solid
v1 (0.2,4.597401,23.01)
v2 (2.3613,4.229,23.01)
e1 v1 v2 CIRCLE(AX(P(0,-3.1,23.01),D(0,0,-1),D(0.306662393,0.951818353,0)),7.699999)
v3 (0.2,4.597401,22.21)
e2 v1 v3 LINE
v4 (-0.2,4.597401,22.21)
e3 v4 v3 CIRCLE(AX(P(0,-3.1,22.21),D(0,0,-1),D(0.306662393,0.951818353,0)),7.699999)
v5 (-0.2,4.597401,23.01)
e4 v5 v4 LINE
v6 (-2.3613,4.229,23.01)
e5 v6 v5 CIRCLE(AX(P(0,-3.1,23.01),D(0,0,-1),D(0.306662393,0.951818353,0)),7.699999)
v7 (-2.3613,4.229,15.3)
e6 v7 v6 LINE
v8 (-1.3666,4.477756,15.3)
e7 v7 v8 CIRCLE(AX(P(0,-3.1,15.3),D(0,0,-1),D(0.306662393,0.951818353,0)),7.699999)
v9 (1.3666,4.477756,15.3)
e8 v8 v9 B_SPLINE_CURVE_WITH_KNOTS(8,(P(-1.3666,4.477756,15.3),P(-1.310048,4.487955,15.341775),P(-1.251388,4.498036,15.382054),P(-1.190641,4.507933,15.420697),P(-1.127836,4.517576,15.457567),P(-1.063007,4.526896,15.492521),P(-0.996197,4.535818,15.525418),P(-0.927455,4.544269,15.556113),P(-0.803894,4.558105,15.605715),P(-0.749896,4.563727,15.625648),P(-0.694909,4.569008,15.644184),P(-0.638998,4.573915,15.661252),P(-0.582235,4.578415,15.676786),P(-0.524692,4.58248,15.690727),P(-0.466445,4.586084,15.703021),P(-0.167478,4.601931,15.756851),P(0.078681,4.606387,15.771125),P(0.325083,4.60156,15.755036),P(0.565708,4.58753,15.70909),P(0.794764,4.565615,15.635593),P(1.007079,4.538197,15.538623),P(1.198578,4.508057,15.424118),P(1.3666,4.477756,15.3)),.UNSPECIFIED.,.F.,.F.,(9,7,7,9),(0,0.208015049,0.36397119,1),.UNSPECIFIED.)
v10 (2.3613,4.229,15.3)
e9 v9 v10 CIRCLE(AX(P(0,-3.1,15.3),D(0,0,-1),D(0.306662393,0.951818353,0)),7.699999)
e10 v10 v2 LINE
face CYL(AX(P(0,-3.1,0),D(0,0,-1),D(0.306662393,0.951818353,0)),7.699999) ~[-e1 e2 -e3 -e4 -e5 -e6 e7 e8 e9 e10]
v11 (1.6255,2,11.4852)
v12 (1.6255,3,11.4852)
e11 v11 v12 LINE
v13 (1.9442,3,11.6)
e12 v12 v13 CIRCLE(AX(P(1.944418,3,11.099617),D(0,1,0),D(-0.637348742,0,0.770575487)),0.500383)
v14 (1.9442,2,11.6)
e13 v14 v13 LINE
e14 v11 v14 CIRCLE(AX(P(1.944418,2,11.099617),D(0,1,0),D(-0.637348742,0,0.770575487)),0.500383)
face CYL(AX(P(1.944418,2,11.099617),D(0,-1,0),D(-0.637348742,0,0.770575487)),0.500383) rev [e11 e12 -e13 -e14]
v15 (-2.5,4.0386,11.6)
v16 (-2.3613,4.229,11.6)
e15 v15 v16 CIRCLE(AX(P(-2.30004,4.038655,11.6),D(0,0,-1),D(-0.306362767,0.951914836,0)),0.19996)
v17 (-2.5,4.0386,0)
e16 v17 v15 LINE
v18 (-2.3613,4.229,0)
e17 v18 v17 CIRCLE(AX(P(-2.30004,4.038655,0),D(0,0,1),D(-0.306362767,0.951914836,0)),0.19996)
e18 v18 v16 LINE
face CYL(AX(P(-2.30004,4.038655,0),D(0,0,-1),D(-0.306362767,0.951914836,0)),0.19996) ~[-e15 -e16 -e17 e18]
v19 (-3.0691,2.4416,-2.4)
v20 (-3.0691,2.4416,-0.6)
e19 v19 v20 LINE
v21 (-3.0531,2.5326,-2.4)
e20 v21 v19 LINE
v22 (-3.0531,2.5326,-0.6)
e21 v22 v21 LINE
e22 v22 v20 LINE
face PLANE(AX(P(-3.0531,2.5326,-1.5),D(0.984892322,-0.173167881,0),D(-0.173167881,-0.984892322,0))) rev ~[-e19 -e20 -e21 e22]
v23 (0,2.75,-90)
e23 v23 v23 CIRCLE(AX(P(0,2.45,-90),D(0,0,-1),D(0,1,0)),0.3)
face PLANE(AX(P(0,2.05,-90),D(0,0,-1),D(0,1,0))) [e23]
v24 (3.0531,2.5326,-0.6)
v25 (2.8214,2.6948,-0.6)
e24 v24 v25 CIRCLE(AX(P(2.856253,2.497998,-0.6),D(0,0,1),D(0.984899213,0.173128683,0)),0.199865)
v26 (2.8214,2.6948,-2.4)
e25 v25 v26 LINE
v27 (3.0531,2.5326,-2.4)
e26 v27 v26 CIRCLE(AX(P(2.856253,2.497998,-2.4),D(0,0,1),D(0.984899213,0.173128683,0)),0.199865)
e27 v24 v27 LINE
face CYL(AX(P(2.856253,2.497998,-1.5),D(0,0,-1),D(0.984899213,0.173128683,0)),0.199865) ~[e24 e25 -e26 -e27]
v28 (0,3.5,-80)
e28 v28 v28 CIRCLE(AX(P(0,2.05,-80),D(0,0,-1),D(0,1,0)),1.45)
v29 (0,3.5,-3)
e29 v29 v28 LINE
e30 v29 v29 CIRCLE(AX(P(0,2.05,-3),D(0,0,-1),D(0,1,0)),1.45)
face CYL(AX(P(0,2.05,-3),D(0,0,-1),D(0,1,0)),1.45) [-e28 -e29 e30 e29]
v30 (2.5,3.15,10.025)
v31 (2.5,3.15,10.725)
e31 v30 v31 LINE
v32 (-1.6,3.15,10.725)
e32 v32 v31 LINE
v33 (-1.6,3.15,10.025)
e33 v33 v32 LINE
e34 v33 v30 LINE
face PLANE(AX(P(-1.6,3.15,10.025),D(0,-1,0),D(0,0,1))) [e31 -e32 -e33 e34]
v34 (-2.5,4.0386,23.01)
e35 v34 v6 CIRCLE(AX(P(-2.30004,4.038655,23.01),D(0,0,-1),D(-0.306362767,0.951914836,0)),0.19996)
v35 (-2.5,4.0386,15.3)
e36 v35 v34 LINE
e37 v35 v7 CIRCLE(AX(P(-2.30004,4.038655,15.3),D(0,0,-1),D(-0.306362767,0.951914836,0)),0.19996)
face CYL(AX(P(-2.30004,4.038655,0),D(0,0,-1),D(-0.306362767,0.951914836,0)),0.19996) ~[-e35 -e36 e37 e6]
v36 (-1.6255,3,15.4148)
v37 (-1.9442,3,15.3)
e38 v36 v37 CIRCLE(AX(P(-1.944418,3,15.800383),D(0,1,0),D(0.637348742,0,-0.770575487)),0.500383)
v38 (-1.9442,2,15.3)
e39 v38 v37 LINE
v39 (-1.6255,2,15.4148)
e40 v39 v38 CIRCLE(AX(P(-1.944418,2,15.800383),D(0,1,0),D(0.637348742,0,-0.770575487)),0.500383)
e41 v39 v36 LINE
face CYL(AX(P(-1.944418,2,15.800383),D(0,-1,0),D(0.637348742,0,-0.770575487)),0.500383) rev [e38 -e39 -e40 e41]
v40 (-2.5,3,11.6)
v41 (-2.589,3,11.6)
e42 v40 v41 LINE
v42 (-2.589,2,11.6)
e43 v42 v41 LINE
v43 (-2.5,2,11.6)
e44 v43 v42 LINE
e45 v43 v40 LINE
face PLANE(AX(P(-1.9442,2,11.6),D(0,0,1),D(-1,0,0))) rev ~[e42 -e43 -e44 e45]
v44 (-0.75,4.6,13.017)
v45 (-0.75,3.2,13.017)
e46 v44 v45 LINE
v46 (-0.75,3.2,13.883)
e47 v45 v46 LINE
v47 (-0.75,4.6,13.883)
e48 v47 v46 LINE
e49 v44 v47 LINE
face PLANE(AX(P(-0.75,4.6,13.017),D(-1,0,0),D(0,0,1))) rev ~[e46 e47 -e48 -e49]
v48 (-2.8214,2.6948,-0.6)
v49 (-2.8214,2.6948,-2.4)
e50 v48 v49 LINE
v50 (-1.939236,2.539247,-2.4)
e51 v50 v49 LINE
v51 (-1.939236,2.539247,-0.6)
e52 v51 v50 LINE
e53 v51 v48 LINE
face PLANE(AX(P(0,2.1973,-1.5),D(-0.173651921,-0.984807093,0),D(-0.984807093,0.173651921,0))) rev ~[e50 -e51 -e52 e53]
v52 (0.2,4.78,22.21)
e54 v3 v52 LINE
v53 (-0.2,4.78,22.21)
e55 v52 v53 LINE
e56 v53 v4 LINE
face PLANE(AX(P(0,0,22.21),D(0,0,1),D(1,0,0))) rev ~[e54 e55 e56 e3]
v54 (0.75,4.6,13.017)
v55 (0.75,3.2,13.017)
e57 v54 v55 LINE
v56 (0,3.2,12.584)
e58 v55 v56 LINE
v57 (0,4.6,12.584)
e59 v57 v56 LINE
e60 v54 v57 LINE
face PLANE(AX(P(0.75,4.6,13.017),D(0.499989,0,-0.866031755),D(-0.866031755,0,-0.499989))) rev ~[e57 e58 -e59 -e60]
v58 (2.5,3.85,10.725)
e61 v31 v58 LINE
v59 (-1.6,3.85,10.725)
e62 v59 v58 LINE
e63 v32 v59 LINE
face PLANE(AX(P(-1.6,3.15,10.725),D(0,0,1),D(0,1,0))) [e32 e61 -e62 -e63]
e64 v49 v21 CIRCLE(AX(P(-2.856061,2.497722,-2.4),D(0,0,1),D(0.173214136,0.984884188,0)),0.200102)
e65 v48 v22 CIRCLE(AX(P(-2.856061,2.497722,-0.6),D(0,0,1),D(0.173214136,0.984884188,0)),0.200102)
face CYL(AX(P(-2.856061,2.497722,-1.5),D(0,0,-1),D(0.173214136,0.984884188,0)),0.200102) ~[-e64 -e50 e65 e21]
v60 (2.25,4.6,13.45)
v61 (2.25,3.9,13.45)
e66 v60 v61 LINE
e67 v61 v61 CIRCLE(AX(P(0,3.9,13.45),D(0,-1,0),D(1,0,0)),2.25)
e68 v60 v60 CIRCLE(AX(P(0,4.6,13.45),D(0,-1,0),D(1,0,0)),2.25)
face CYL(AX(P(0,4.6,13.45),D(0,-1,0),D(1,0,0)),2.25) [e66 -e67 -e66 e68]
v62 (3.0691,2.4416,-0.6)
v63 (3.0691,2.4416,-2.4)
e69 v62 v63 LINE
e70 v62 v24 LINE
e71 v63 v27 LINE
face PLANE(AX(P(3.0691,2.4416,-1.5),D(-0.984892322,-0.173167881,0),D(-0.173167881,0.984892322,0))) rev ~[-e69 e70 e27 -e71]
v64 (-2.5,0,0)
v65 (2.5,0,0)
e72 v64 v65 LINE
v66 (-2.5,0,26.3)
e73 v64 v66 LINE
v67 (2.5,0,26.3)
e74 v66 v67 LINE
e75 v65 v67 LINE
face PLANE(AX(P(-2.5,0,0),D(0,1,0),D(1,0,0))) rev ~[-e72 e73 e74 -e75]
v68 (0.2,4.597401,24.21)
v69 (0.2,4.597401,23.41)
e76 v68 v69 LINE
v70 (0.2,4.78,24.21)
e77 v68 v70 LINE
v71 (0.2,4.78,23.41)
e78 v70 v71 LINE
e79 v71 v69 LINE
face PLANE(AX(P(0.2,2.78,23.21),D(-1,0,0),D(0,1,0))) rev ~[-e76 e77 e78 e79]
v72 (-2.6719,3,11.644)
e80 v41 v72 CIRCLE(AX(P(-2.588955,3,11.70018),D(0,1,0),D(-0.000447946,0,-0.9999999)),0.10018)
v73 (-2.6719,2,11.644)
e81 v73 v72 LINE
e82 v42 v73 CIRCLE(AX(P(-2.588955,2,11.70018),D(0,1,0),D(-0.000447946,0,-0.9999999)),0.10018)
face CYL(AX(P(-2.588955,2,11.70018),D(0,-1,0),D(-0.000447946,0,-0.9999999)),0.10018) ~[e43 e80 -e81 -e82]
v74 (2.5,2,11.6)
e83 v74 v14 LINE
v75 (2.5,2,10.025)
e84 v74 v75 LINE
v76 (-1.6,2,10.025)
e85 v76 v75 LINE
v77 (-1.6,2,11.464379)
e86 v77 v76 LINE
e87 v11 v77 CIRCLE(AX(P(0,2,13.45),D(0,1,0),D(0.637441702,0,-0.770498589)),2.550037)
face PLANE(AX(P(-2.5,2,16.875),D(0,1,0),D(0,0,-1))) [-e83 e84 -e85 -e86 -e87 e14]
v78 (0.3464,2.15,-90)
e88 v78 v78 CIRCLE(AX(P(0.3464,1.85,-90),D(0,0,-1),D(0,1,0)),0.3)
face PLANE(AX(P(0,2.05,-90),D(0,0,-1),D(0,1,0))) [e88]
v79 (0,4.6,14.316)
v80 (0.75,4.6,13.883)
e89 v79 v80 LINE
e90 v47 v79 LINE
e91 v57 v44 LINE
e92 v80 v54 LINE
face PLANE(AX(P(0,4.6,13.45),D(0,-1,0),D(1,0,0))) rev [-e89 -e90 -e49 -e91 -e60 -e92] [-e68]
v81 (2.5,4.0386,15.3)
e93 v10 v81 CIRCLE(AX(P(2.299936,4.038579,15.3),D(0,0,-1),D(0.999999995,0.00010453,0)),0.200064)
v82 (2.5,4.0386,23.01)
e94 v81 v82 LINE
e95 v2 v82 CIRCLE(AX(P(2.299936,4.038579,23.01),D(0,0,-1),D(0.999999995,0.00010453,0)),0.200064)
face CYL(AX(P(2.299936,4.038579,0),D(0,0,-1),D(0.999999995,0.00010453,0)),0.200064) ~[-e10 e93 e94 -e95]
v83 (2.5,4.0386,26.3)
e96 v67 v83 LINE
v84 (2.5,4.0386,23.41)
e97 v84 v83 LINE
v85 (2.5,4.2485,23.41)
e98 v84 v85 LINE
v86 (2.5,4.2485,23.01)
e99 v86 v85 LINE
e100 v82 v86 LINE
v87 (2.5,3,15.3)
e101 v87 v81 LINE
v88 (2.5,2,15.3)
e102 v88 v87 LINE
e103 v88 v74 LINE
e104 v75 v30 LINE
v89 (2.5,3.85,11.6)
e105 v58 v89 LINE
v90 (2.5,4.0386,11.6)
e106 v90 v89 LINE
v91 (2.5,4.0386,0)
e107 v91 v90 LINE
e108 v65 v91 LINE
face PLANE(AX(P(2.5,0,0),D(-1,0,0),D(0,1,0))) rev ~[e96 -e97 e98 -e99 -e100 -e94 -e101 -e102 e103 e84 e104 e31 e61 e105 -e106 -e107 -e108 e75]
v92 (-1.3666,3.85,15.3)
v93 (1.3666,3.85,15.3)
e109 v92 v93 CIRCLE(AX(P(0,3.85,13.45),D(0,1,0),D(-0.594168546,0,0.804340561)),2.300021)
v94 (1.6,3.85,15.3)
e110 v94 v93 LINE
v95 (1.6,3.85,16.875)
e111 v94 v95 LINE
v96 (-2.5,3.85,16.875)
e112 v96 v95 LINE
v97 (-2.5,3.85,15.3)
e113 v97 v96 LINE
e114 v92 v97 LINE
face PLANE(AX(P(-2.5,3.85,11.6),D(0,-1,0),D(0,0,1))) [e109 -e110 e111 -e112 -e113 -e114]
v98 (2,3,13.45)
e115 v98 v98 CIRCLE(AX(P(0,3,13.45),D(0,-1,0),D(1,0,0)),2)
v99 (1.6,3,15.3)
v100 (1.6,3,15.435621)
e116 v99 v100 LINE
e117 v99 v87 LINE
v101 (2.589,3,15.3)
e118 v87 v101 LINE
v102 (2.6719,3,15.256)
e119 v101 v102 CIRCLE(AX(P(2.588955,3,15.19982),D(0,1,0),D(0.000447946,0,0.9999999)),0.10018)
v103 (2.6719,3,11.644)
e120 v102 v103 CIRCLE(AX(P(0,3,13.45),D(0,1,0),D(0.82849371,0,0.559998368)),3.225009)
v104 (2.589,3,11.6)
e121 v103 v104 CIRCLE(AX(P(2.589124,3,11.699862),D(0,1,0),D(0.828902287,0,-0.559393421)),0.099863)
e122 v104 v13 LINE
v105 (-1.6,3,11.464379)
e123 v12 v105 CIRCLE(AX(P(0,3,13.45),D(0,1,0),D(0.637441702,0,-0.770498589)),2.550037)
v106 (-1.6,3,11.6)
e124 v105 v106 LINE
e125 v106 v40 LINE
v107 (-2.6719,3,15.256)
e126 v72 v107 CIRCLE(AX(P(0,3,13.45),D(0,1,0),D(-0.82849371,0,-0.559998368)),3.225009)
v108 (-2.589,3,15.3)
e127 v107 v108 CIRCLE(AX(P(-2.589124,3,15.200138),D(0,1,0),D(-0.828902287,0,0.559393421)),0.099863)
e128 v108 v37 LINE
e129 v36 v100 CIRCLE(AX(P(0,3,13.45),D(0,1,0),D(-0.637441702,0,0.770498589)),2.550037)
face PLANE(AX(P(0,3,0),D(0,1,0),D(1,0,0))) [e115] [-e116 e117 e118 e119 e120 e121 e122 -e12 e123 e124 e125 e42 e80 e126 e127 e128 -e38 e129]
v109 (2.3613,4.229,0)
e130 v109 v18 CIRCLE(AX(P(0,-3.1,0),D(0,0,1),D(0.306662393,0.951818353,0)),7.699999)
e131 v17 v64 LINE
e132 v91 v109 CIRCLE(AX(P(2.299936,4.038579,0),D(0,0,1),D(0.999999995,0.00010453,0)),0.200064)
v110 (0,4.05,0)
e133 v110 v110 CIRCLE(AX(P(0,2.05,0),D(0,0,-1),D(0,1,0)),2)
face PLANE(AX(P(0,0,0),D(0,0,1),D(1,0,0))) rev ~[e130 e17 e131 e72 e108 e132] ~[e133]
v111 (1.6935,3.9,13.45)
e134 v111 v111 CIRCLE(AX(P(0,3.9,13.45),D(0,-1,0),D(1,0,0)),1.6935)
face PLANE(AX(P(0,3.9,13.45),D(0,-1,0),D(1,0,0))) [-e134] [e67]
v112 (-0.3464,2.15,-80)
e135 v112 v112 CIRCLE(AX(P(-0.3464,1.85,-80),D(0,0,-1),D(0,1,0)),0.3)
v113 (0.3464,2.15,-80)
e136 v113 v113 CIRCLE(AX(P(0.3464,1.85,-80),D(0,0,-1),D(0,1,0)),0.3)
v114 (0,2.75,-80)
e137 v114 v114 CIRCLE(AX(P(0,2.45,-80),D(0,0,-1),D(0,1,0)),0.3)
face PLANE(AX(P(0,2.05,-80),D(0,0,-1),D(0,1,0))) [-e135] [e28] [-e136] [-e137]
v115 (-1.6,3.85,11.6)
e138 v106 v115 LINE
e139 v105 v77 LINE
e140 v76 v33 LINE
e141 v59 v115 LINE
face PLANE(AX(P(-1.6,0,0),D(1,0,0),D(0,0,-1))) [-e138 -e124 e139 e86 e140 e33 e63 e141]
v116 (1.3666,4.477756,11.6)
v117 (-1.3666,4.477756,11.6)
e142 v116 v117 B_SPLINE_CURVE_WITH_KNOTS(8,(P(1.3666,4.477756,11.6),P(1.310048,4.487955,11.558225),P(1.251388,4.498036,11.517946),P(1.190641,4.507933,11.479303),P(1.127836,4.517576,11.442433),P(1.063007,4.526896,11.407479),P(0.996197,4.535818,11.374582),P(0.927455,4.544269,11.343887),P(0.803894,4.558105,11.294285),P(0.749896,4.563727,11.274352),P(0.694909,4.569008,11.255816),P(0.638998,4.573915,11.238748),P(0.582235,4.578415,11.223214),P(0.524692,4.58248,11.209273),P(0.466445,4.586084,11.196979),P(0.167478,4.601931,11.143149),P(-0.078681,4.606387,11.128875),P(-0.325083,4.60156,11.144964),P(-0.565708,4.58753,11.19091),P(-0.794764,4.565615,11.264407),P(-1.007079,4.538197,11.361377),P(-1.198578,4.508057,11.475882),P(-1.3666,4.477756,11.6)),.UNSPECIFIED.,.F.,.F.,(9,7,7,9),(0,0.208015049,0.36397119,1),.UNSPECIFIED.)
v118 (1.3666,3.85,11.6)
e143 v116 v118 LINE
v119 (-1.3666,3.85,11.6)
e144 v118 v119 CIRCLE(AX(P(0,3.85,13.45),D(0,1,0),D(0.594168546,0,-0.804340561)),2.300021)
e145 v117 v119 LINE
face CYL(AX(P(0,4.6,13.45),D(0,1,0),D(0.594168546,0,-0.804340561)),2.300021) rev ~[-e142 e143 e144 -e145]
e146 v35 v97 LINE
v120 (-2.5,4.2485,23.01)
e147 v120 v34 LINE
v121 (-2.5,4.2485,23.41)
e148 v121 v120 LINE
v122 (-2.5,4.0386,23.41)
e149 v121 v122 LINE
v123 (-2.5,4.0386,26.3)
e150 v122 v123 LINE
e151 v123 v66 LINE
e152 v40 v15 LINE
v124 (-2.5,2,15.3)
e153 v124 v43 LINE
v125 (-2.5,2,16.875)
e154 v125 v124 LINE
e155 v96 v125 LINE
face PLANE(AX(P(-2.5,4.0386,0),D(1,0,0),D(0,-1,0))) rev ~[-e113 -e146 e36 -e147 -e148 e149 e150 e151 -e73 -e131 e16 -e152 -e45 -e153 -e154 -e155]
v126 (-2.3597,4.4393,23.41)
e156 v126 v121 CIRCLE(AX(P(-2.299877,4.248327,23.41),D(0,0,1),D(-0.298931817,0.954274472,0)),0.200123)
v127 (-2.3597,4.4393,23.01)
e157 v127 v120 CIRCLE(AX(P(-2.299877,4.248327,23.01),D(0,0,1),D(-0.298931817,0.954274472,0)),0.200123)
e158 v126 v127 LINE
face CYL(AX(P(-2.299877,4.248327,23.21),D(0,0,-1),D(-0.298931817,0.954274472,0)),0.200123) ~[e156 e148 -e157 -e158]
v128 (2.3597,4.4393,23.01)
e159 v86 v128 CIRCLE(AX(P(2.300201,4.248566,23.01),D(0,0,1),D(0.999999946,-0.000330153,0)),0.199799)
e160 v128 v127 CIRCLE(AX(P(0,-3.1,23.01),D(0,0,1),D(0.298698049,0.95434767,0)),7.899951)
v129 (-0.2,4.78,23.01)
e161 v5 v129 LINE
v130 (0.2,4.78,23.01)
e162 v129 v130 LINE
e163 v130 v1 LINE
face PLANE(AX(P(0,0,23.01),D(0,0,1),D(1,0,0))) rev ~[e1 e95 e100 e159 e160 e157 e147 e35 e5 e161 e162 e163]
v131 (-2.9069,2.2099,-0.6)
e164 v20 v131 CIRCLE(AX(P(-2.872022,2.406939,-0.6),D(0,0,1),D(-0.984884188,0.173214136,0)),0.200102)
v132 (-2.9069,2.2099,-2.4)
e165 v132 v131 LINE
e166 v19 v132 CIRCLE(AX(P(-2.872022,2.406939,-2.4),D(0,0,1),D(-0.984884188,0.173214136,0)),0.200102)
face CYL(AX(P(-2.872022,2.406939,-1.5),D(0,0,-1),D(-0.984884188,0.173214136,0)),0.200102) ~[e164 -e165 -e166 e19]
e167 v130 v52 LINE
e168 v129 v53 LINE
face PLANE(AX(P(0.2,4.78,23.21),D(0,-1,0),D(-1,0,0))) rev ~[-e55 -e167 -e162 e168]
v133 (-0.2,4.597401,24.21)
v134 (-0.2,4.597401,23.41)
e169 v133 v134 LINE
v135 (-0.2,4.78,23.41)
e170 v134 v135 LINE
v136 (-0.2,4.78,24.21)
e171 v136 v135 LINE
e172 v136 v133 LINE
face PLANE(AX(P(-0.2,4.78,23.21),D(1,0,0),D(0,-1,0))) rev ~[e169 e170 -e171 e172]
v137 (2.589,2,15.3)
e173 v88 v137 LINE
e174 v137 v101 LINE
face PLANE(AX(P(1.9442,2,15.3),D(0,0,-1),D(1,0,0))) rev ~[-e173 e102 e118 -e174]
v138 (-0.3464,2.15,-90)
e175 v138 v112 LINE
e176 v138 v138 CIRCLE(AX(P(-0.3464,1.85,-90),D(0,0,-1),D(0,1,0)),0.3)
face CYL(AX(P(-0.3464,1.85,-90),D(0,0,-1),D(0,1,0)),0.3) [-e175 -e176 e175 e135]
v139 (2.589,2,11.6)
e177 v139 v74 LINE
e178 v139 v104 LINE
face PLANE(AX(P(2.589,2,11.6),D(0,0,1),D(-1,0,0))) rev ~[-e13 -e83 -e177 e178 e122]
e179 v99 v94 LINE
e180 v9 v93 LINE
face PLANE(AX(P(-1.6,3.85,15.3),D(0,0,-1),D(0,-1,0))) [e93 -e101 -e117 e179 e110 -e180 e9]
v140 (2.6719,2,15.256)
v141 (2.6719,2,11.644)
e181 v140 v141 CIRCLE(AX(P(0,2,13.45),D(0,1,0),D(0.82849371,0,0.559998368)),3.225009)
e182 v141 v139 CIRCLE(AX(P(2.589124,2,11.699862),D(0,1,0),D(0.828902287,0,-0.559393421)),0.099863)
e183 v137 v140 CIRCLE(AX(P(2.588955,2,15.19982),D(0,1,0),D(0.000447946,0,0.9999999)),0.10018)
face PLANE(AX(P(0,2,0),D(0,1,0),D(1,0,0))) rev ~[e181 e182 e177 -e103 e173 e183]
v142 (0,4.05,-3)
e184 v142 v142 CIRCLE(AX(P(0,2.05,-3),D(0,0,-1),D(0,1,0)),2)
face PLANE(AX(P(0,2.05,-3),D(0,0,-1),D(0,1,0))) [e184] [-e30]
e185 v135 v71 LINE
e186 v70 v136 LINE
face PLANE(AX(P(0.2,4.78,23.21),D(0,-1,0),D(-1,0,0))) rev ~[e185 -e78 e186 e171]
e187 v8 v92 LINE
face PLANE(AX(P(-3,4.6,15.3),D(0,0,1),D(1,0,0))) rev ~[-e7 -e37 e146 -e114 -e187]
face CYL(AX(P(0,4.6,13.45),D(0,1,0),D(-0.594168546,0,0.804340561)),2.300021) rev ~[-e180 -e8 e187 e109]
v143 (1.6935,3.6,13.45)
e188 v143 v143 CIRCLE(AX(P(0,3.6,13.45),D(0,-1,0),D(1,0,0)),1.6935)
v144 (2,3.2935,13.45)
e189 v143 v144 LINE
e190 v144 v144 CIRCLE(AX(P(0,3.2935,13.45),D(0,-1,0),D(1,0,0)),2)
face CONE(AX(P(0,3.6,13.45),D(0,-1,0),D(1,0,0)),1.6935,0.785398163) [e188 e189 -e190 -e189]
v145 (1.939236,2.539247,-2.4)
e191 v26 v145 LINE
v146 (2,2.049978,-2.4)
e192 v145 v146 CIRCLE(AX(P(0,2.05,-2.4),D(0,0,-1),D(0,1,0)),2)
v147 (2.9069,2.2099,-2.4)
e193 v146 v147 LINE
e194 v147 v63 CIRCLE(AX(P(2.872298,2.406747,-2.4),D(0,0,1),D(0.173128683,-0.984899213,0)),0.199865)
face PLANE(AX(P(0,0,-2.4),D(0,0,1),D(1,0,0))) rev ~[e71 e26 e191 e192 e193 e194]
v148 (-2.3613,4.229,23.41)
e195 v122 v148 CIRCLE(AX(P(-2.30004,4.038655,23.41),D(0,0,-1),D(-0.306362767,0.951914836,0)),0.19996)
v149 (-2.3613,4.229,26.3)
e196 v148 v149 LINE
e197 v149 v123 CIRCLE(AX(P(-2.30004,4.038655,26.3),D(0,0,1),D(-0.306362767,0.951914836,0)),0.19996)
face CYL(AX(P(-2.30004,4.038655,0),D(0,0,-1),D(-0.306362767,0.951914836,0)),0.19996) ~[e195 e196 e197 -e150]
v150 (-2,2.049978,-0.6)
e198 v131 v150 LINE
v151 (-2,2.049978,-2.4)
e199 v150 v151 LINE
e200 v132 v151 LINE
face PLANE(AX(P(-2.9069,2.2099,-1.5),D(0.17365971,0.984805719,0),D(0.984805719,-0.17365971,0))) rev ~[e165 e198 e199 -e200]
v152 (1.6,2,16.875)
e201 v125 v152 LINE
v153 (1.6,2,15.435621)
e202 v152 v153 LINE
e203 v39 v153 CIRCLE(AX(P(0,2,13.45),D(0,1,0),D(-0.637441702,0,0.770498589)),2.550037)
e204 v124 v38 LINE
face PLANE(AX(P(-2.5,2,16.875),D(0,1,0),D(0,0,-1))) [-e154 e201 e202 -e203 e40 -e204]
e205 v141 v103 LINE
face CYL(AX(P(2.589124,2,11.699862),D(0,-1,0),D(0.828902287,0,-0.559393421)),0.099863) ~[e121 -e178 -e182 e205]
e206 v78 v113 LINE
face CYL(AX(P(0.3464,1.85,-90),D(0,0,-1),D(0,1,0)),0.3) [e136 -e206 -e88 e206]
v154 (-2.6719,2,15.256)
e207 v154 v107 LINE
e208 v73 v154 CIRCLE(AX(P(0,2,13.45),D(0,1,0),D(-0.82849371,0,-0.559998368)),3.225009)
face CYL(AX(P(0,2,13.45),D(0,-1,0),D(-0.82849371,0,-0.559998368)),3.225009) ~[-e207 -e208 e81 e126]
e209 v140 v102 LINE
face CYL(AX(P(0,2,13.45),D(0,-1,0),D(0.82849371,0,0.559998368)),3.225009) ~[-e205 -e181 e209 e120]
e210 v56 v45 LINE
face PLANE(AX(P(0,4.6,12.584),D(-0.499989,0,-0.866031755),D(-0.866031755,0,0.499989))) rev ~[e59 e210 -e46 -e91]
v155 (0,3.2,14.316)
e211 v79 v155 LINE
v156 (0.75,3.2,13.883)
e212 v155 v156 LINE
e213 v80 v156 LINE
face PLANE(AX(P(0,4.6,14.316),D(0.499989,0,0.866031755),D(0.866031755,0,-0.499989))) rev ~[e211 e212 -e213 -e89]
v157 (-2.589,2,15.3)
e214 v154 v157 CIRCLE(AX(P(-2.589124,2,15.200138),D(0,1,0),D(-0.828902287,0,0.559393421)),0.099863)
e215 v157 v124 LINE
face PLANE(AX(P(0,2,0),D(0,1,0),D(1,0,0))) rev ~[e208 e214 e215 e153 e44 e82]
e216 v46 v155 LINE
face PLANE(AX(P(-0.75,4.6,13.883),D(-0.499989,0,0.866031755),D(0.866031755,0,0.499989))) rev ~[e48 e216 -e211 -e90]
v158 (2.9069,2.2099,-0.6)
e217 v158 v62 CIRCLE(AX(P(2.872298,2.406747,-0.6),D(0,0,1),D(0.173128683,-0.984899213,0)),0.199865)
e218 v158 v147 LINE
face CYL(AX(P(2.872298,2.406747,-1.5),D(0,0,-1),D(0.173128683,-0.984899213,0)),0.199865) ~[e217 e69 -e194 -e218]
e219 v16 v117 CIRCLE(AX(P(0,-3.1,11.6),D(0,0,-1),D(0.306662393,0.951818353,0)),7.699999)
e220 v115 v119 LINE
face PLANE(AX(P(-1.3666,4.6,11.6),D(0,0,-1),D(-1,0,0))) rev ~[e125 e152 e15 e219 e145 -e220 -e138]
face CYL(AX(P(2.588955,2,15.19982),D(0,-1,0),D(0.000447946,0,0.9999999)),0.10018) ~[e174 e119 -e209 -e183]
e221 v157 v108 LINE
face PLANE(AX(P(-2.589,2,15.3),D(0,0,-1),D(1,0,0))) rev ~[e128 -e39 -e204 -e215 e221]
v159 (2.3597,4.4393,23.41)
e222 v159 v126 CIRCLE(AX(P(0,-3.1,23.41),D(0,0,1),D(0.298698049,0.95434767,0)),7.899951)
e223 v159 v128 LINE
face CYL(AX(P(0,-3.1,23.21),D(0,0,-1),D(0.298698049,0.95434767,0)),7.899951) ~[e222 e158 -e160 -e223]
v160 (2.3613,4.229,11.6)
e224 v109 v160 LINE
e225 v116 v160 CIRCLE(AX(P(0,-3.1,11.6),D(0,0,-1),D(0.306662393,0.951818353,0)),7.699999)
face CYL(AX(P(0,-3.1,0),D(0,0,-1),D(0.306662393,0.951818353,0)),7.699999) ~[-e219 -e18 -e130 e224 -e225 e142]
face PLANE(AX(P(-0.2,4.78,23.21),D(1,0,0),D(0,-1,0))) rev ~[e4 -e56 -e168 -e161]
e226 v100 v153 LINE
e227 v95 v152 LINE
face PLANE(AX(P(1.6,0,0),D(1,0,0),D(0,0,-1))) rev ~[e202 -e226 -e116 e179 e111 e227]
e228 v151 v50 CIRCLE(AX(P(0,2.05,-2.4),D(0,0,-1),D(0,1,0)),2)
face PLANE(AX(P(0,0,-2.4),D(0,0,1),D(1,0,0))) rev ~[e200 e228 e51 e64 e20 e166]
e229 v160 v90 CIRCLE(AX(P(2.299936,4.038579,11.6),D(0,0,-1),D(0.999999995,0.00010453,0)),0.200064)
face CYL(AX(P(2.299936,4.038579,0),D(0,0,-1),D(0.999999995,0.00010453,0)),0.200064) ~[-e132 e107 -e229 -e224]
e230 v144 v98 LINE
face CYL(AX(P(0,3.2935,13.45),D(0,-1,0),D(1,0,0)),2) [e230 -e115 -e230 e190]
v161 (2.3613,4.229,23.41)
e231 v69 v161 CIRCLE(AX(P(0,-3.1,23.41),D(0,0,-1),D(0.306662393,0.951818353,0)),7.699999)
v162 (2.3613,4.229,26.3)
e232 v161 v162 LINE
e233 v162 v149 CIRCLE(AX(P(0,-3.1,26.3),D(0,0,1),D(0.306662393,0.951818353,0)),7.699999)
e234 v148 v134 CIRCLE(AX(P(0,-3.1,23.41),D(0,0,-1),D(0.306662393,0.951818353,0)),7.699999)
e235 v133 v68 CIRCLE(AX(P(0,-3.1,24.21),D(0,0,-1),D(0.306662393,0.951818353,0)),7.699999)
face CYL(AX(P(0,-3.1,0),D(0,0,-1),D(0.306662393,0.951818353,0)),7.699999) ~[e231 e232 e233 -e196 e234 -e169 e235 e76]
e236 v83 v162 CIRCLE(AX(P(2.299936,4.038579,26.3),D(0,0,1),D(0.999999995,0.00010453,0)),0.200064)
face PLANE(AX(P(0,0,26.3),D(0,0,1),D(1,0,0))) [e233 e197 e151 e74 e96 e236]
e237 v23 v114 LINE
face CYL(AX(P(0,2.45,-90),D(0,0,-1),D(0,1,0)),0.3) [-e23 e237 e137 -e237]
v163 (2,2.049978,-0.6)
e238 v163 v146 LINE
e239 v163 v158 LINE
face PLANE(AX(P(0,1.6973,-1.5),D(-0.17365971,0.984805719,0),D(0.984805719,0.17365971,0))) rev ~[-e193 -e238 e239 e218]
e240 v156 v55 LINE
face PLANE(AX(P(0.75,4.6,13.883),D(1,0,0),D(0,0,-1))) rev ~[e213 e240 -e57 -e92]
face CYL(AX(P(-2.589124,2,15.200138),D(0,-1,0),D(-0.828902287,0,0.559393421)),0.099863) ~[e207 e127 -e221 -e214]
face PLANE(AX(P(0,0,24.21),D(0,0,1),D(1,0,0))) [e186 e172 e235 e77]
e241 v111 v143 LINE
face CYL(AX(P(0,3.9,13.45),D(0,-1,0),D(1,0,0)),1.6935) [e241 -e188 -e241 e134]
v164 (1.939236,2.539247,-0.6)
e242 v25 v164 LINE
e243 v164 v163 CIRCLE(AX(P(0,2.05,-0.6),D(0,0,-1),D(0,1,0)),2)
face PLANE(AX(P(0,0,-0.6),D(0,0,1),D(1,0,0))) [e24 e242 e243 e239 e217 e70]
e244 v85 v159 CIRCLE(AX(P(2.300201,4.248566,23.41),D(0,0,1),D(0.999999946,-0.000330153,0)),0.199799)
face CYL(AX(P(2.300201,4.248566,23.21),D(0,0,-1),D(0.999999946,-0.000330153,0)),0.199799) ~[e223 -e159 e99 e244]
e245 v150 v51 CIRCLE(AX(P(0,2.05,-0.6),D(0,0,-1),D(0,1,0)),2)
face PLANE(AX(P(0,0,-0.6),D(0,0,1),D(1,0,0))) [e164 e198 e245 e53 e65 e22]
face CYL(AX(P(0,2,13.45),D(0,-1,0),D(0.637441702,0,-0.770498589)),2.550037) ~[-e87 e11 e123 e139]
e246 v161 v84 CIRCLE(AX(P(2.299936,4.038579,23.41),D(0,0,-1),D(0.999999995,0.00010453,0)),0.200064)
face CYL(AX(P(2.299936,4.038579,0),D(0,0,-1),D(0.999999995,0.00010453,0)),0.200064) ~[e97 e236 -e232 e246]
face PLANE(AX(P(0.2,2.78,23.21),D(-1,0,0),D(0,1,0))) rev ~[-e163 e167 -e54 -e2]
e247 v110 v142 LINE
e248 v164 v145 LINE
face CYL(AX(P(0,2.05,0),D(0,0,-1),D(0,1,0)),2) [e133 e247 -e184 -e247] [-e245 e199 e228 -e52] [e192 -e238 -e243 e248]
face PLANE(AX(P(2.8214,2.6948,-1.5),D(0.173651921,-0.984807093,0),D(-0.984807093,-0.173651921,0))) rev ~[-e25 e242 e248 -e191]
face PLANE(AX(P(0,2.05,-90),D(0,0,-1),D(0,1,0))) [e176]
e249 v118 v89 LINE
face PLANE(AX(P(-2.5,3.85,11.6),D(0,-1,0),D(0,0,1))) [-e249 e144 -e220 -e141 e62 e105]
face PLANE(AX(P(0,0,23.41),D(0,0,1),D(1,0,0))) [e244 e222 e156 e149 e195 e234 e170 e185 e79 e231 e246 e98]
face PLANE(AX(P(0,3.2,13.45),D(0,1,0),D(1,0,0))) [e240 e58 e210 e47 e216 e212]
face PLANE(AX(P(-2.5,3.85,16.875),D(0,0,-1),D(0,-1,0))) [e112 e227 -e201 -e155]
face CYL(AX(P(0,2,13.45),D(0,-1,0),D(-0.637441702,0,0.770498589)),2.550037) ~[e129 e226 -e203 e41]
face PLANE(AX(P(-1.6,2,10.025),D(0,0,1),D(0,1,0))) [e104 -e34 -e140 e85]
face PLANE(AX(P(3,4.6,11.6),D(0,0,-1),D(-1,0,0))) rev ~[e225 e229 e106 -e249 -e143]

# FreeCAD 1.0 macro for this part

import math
import FreeCAD as App
import Part
import Sketcher

V = App.Vector
Q = App.Units.Quantity


def add_polygon(sketch, points):
    """Adds a closed chain of lines whose ends are joined by coincident constraints."""
    first, n = sketch.GeometryCount, len(points)
    for a, b in zip(points, points[1:] + points[:1]):
        sketch.addGeometry(Part.LineSegment(App.Vector(*a, 0), App.Vector(*b, 0)), False)
    for i in range(n):
        sketch.addConstraint(Sketcher.Constraint("Coincident", first + i, 2, first + (i + 1) % n, 1))

doc = App.newDocument("Part")
body = doc.addObject("PartDesign::Body", "Body")

# Sketch on XY plane
sketch1 = body.newObject("Sketcher::SketchObject", "Sketch")
sketch1.AttachmentSupport = (doc.getObject("XY_Plane"), [""])
sketch1.MapMode = "FlatFace"
sketch1.addGeometry(Part.ArcOfCircle(Part.Circle(V(-2.3, 4.04, 0), V(0, 0, 1), 0.2), math.radians(108), math.radians(180)), False)
sketch1.addGeometry(Part.LineSegment(V(-2.5, 4.04, 0), V(-2.5, 0, 0)), False)
sketch1.addGeometry(Part.LineSegment(V(-2.5, 0, 0), V(2.5, 0, 0)), False)
sketch1.addGeometry(Part.LineSegment(V(2.5, 0, 0), V(2.5, 4.04, 0)), False)
sketch1.addGeometry(Part.ArcOfCircle(Part.Circle(V(2.3, 4.04, 0), V(0, 0, 1), 0.2), math.radians(0), math.radians(72)), False)
sketch1.addGeometry(Part.ArcOfCircle(Part.Circle(V(0, -3.1, 0), V(0, 0, 1), 7.7), math.radians(72), math.radians(108)), False)
sketch1.addConstraint(Sketcher.Constraint("Tangent", 0, 2, 1, 1))
sketch1.addConstraint(Sketcher.Constraint("Coincident", 1, 2, 2, 1))
sketch1.addConstraint(Sketcher.Constraint("Coincident", 2, 2, 3, 1))
sketch1.addConstraint(Sketcher.Constraint("Tangent", 3, 2, 4, 1))
sketch1.addConstraint(Sketcher.Constraint("Tangent", 4, 2, 5, 1))
sketch1.addConstraint(Sketcher.Constraint("Tangent", 5, 2, 0, 1))
sketch1.addConstraint(Sketcher.Constraint("Vertical", 1))
sketch1.addConstraint(Sketcher.Constraint("Horizontal", 2))
sketch1.addConstraint(Sketcher.Constraint("Vertical", 3))
sketch1.addConstraint(Sketcher.Constraint("Equal", 0, 4))
sketch1.addConstraint(Sketcher.Constraint("Symmetric", 1, 2, 2, 2, -1, 1))
sketch1.addConstraint(Sketcher.Constraint("PointOnObject", 5, 3, -2))
sketch1.addConstraint(Sketcher.Constraint("Radius", 0, 0.2))
sketch1.addConstraint(Sketcher.Constraint("Radius", 5, 7.7))
sketch1.addConstraint(Sketcher.Constraint("DistanceX", 2, 1, 2, 2, 5.0))
sketch1.addConstraint(Sketcher.Constraint("DistanceY", 5, 3, -1, 1, 3.1))
pad1 = body.newObject("PartDesign::Pad", "Pad")
pad1.Profile = sketch1
pad1.Length = 26.3

# Sketch on YZ plane
sketch2 = body.newObject("Sketcher::SketchObject", "Sketch001")
sketch2.AttachmentSupport = (doc.getObject("YZ_Plane"), [""])
sketch2.MapMode = "FlatFace"
sketch2.AttachmentOffset = App.Placement(V(0, 0, -1.6), App.Rotation())
add_polygon(sketch2, [(3.9, 10.7), (3.9, 15.3), (2, 15.3), (2, 10), (3.1, 10), (3.1, 10.7)])  # lines 0-5
sketch2.addConstraint(Sketcher.Constraint("Vertical", 0))
sketch2.addConstraint(Sketcher.Constraint("Horizontal", 1))
sketch2.addConstraint(Sketcher.Constraint("Vertical", 2))
sketch2.addConstraint(Sketcher.Constraint("Horizontal", 3))
sketch2.addConstraint(Sketcher.Constraint("Vertical", 4))
sketch2.addConstraint(Sketcher.Constraint("Horizontal", 5))
sketch2.addConstraint(Sketcher.Constraint("Equal", 5, 4))
sketch2.addConstraint(Sketcher.Constraint("DistanceX", 5, 1, 5, 2, 0.7))
sketch2.addConstraint(Sketcher.Constraint("DistanceX", -1, 1, 1, 2, 2.0))
sketch2.addConstraint(Sketcher.Constraint("DistanceX", 1, 2, 1, 1, 1.85))
sketch2.addConstraint(Sketcher.Constraint("DistanceY", -1, 1, 0, 2, 15.3))
sketch2.addConstraint(Sketcher.Constraint("DistanceY", 0, 1, 0, 2, 4.575))
pocket1 = body.newObject("PartDesign::Pocket", "Pocket")
pocket1.Profile = sketch2
pocket1.Length = 4.1
pocket1.Reversed = True

# Sketch on YZ plane
sketch3 = body.newObject("Sketcher::SketchObject", "Sketch002")
sketch3.AttachmentSupport = (doc.getObject("YZ_Plane"), [""])
sketch3.MapMode = "FlatFace"
sketch3.AttachmentOffset = App.Placement(V(0, 0, -2.5), App.Rotation())
add_polygon(sketch3, [(3.9, 11.6), (3.9, 16.9), (2, 16.9), (2, 11.6)])  # lines 0-3
sketch3.addConstraint(Sketcher.Constraint("Vertical", 0))
sketch3.addConstraint(Sketcher.Constraint("Horizontal", 1))
sketch3.addConstraint(Sketcher.Constraint("Vertical", 2))
sketch3.addConstraint(Sketcher.Constraint("Horizontal", 3))
sketch3.addConstraint(Sketcher.Constraint("DistanceX", -1, 1, 1, 2, 2.0))
sketch3.addConstraint(Sketcher.Constraint("DistanceX", 1, 2, 1, 1, 1.85))
sketch3.addConstraint(Sketcher.Constraint("DistanceY", -1, 1, 2, 2, 11.6))
sketch3.addConstraint(Sketcher.Constraint("DistanceY", 0, 1, 0, 2, 5.275))
pocket2 = body.newObject("PartDesign::Pocket", "Pocket001")
pocket2.Profile = sketch3
pocket2.Length = 4.1
pocket2.Reversed = True

# Sketch on XZ plane
sketch4 = body.newObject("Sketcher::SketchObject", "Sketch003")
sketch4.AttachmentSupport = (doc.getObject("XZ_Plane"), [""])
sketch4.MapMode = "FlatFace"
sketch4.AttachmentOffset = App.Placement(V(0, 0, -4.6), App.Rotation())
sketch4.addGeometry(Part.LineSegment(V(-3, 11.6, 0), V(-3, 15.3, 0)), False)
sketch4.addGeometry(Part.LineSegment(V(-3, 15.3, 0), V(-1.4, 15.3, 0)), False)
sketch4.addGeometry(Part.ArcOfCircle(Part.Circle(V(0, 13.4, 0), V(0, 0, 1), 2.3), math.radians(54), math.radians(126)), False)
sketch4.addGeometry(Part.LineSegment(V(1.4, 15.3, 0), V(3, 15.3, 0)), False)
sketch4.addGeometry(Part.LineSegment(V(3, 15.3, 0), V(3, 11.6, 0)), False)
sketch4.addGeometry(Part.LineSegment(V(3, 11.6, 0), V(1.4, 11.6, 0)), False)
sketch4.addGeometry(Part.ArcOfCircle(Part.Circle(V(0, 13.4, 0), V(0, 0, 1), 2.3), math.radians(-126), math.radians(-54)), False)
sketch4.addGeometry(Part.LineSegment(V(-1.4, 11.6, 0), V(-3, 11.6, 0)), False)
sketch4.addConstraint(Sketcher.Constraint("Coincident", 0, 2, 1, 1))
sketch4.addConstraint(Sketcher.Constraint("Coincident", 1, 2, 2, 2))
sketch4.addConstraint(Sketcher.Constraint("Coincident", 2, 1, 3, 1))
sketch4.addConstraint(Sketcher.Constraint("Coincident", 3, 2, 4, 1))
sketch4.addConstraint(Sketcher.Constraint("Coincident", 4, 2, 5, 1))
sketch4.addConstraint(Sketcher.Constraint("Coincident", 5, 2, 6, 2))
sketch4.addConstraint(Sketcher.Constraint("Coincident", 6, 1, 7, 1))
sketch4.addConstraint(Sketcher.Constraint("Coincident", 7, 2, 0, 1))
sketch4.addConstraint(Sketcher.Constraint("Vertical", 0))
sketch4.addConstraint(Sketcher.Constraint("Horizontal", 1))
sketch4.addConstraint(Sketcher.Constraint("Horizontal", 3))
sketch4.addConstraint(Sketcher.Constraint("Vertical", 4))
sketch4.addConstraint(Sketcher.Constraint("Horizontal", 5))
sketch4.addConstraint(Sketcher.Constraint("Horizontal", 7))
sketch4.addConstraint(Sketcher.Constraint("Coincident", 6, 3, 2, 3))
sketch4.addConstraint(Sketcher.Constraint("Equal", 2, 6))
sketch4.addConstraint(Sketcher.Constraint("Symmetric", 1, 2, 2, 1, -2))
sketch4.addConstraint(Sketcher.Constraint("Symmetric", 4, 2, 7, 2, -2))
sketch4.addConstraint(Sketcher.Constraint("Vertical", 2, 1, 5, 2))
sketch4.addConstraint(Sketcher.Constraint("Radius", 2, 2.3))
sketch4.addConstraint(Sketcher.Constraint("DistanceY", 0, 1, 0, 2, 3.7))
sketch4.addConstraint(Sketcher.Constraint("DistanceX", 0, 2, -1, 1, 3.0))
sketch4.addConstraint(Sketcher.Constraint("DistanceY", -1, 1, 0, 2, 15.3))
pocket3 = body.newObject("PartDesign::Pocket", "Pocket002")
pocket3.Profile = sketch4
pocket3.Length = 2.5
pocket3.Reversed = True

# Sketch on XZ plane
sketch5 = body.newObject("Sketcher::SketchObject", "Sketch004")
sketch5.AttachmentSupport = (doc.getObject("XZ_Plane"), [""])
sketch5.MapMode = "FlatFace"
sketch5.AttachmentOffset = App.Placement(V(0, 0, -2), App.Rotation())
sketch5.addGeometry(Part.ArcOfCircle(Part.Circle(V(-2.59, 11.7, 0), V(0, 0, 1), 0.1), math.radians(-146), math.radians(-90)), False)
sketch5.addGeometry(Part.ArcOfCircle(Part.Circle(V(0, 13.45, 0), V(0, 0, 1), 3.23), math.radians(146), math.radians(214)), False)
sketch5.addGeometry(Part.ArcOfCircle(Part.Circle(V(-2.59, 15.2, 0), V(0, 0, 1), 0.1), math.radians(90), math.radians(146)), False)
sketch5.addGeometry(Part.LineSegment(V(-2.59, 15.3, 0), V(-1.94, 15.3, 0)), False)
sketch5.addGeometry(Part.ArcOfCircle(Part.Circle(V(-1.94, 15.8, 0), V(0, 0, 1), 0.5), math.radians(-90), math.radians(-50)), False)
sketch5.addGeometry(Part.ArcOfCircle(Part.Circle(V(0, 13.45, 0), V(0, 0, 1), 2.55), math.radians(50), math.radians(130)), False)
sketch5.addGeometry(Part.ArcOfCircle(Part.Circle(V(1.94, 15.8, 0), V(0, 0, 1), 0.5), math.radians(-130), math.radians(-90)), False)
sketch5.addGeometry(Part.LineSegment(V(1.94, 15.3, 0), V(2.59, 15.3, 0)), False)
sketch5.addGeometry(Part.ArcOfCircle(Part.Circle(V(2.59, 15.2, 0), V(0, 0, 1), 0.1), math.radians(34), math.radians(90)), False)
sketch5.addGeometry(Part.ArcOfCircle(Part.Circle(V(0, 13.45, 0), V(0, 0, 1), 3.23), math.radians(-34), math.radians(34)), False)
sketch5.addGeometry(Part.ArcOfCircle(Part.Circle(V(2.59, 11.7, 0), V(0, 0, 1), 0.1), math.radians(-90), math.radians(-34)), False)
sketch5.addGeometry(Part.LineSegment(V(2.59, 11.6, 0), V(1.94, 11.6, 0)), False)
sketch5.addGeometry(Part.ArcOfCircle(Part.Circle(V(1.94, 11.1, 0), V(0, 0, 1), 0.5), math.radians(90), math.radians(130)), False)
sketch5.addGeometry(Part.ArcOfCircle(Part.Circle(V(0, 13.45, 0), V(0, 0, 1), 2.55), math.radians(-130), math.radians(-50)), False)
sketch5.addGeometry(Part.ArcOfCircle(Part.Circle(V(-1.94, 11.1, 0), V(0, 0, 1), 0.5), math.radians(50), math.radians(90)), False)
sketch5.addGeometry(Part.LineSegment(V(-1.94, 11.6, 0), V(-2.59, 11.6, 0)), False)
sketch5.addConstraint(Sketcher.Constraint("Tangent", 0, 1, 1, 2))
sketch5.addConstraint(Sketcher.Constraint("Tangent", 1, 1, 2, 2))
sketch5.addConstraint(Sketcher.Constraint("Tangent", 2, 1, 3, 1))
sketch5.addConstraint(Sketcher.Constraint("Tangent", 3, 2, 4, 1))
sketch5.addConstraint(Sketcher.Constraint("Tangent", 4, 2, 5, 2))
sketch5.addConstraint(Sketcher.Constraint("Tangent", 5, 1, 6, 1))
sketch5.addConstraint(Sketcher.Constraint("Tangent", 6, 2, 7, 1))
sketch5.addConstraint(Sketcher.Constraint("Tangent", 7, 2, 8, 2))
sketch5.addConstraint(Sketcher.Constraint("Tangent", 8, 1, 9, 2))
sketch5.addConstraint(Sketcher.Constraint("Tangent", 9, 1, 10, 2))
sketch5.addConstraint(Sketcher.Constraint("Tangent", 10, 1, 11, 1))
sketch5.addConstraint(Sketcher.Constraint("Tangent", 11, 2, 12, 1))
sketch5.addConstraint(Sketcher.Constraint("Tangent", 12, 2, 13, 2))
sketch5.addConstraint(Sketcher.Constraint("Tangent", 13, 1, 14, 1))
sketch5.addConstraint(Sketcher.Constraint("Tangent", 14, 2, 15, 1))
sketch5.addConstraint(Sketcher.Constraint("Tangent", 15, 2, 0, 2))
sketch5.addConstraint(Sketcher.Constraint("Horizontal", 3))
sketch5.addConstraint(Sketcher.Constraint("Horizontal", 7))
sketch5.addConstraint(Sketcher.Constraint("Horizontal", 11))
sketch5.addConstraint(Sketcher.Constraint("Horizontal", 15))
sketch5.addConstraint(Sketcher.Constraint("Coincident", 5, 3, 1, 3))
sketch5.addConstraint(Sketcher.Constraint("Coincident", 9, 3, 1, 3))
sketch5.addConstraint(Sketcher.Constraint("Coincident", 13, 3, 1, 3))
sketch5.addConstraint(Sketcher.Constraint("Equal", 0, 2))
sketch5.addConstraint(Sketcher.Constraint("Equal", 4, 6))
sketch5.addConstraint(Sketcher.Constraint("Equal", 2, 8))
sketch5.addConstraint(Sketcher.Constraint("Equal", 1, 9))
sketch5.addConstraint(Sketcher.Constraint("Equal", 8, 10))
sketch5.addConstraint(Sketcher.Constraint("Equal", 6, 12))
sketch5.addConstraint(Sketcher.Constraint("Equal", 5, 13))
sketch5.addConstraint(Sketcher.Constraint("Equal", 12, 14))
sketch5.addConstraint(Sketcher.Constraint("Symmetric", 4, 3, 6, 3, -2))
sketch5.addConstraint(Sketcher.Constraint("Horizontal", 0, 3, 10, 3))
sketch5.addConstraint(Sketcher.Constraint("Vertical", 0, 3, 2, 3))
sketch5.addConstraint(Sketcher.Constraint("Radius", 0, 0.1))
sketch5.addConstraint(Sketcher.Constraint("Radius", 4, 0.5))
sketch5.addConstraint(Sketcher.Constraint("Radius", 5, 2.55))
sketch5.addConstraint(Sketcher.Constraint("Radius", 1, 3.225))
sketch5.addConstraint(Sketcher.Constraint("DistanceY", -1, 1, 0, 3, 11.7))
sketch5.addConstraint(Sketcher.Constraint("DistanceY", -1, 1, 2, 3, 15.2))
pad2 = body.newObject("PartDesign::Pad", "Pad001")
pad2.Profile = sketch5
pad2.Length = 1
pad2.Reversed = True

# Sketch on XY plane
sketch6 = body.newObject("Sketcher::SketchObject", "Sketch005")
sketch6.AttachmentSupport = (doc.getObject("XY_Plane"), [""])
sketch6.MapMode = "FlatFace"
sketch6.AttachmentOffset = App.Placement(V(0, 0, 13.45), App.Rotation())
add_polygon(sketch6, [(0, 4.6), (0, 2), (1.69, 2), (2, 2.31), (2, 3.29), (1.69, 3.6), (1.69, 3.9), (2.25, 3.9), (2.25, 4.6)])  # lines 0-8
sketch6.addConstraint(Sketcher.Constraint("Vertical", 0))
sketch6.addConstraint(Sketcher.Constraint("Horizontal", 1))
sketch6.addConstraint(Sketcher.Constraint("Vertical", 3))
sketch6.addConstraint(Sketcher.Constraint("Vertical", 5))
sketch6.addConstraint(Sketcher.Constraint("Horizontal", 6))
sketch6.addConstraint(Sketcher.Constraint("Vertical", 7))
sketch6.addConstraint(Sketcher.Constraint("Horizontal", 8))
sketch6.addConstraint(Sketcher.Constraint("PointOnObject", 0, 2, -2))
sketch6.addConstraint(Sketcher.Constraint("Perpendicular", 2, 4))
sketch6.addConstraint(Sketcher.Constraint("Vertical", 1, 2, 4, 2))
sketch6.addConstraint(Sketcher.Constraint("Equal", 2, 4))
sketch6.addConstraint(Sketcher.Constraint("DistanceY", 0, 2, 0, 1, 2.6))
sketch6.addConstraint(Sketcher.Constraint("DistanceY", 5, 1, 5, 2, 0.3))
sketch6.addConstraint(Sketcher.Constraint("DistanceY", 7, 1, 7, 2, 0.7))
sketch6.addConstraint(Sketcher.Constraint("DistanceY", -1, 1, 0, 2, 2.0))
sketch6.addConstraint(Sketcher.Constraint("DistanceX", -1, 1, 2, 2, 2.0))
sketch6.addConstraint(Sketcher.Constraint("DistanceX", 8, 2, 8, 1, 2.25))
sketch6.addConstraint(Sketcher.Constraint("DistanceY", 3, 1, 3, 2, 0.987))
revolution = body.newObject("PartDesign::Revolution", "Revolution")
revolution.Profile = sketch6
revolution.ReferenceAxis = (sketch6, ["V_Axis"])
revolution.Angle = 360

# Sketch on XZ plane
sketch7 = body.newObject("Sketcher::SketchObject", "Sketch006")
sketch7.AttachmentSupport = (doc.getObject("XZ_Plane"), [""])
sketch7.MapMode = "FlatFace"
sketch7.AttachmentOffset = App.Placement(V(0, 0, -4.6), App.Rotation())
add_polygon(sketch7, [(-0.8, 13), (-0.8, 13.9), (0, 14.3), (0.8, 13.9), (0.8, 13), (0, 12.6)])  # lines 0-5
sketch7.addConstraint(Sketcher.Constraint("Vertical", 0))
sketch7.addConstraint(Sketcher.Constraint("Vertical", 3))
sketch7.addConstraint(Sketcher.Constraint("Symmetric", 0, 2, 2, 2, -2))
sketch7.addConstraint(Sketcher.Constraint("PointOnObject", 1, 2, -2))
sketch7.addConstraint(Sketcher.Constraint("PointOnObject", 4, 2, -2))
sketch7.addConstraint(Sketcher.Constraint("Parallel", 1, 4))
sketch7.addConstraint(Sketcher.Constraint("Parallel", 2, 5))
sketch7.addConstraint(Sketcher.Constraint("Angle", 1, Q("29.9993 deg")))
sketch7.addConstraint(Sketcher.Constraint("DistanceX", 0, 2, 2, 2, 1.5))
sketch7.addConstraint(Sketcher.Constraint("DistanceY", 0, 1, 0, 2, 0.866))
sketch7.addConstraint(Sketcher.Constraint("DistanceY", -1, 1, 0, 2, 13.883))
pocket4 = body.newObject("PartDesign::Pocket", "Pocket003")
pocket4.Profile = sketch7
pocket4.Length = 1.4
pocket4.Reversed = True

# Sketch on XY plane
sketch8 = body.newObject("Sketcher::SketchObject", "Sketch007")
sketch8.AttachmentSupport = (doc.getObject("XY_Plane"), [""])
sketch8.MapMode = "FlatFace"
sketch8.AttachmentOffset = App.Placement(V(0, 0, 23.21), App.Rotation())
sketch8.addGeometry(Part.LineSegment(V(-2.5, 4.25, 0), V(-2.5, 2.8, 0)), False)
sketch8.addGeometry(Part.LineSegment(V(-2.5, 2.8, 0), V(2.5, 2.8, 0)), False)
sketch8.addGeometry(Part.LineSegment(V(2.5, 2.8, 0), V(2.5, 4.25, 0)), False)
sketch8.addGeometry(Part.ArcOfCircle(Part.Circle(V(2.3, 4.25, 0), V(0, 0, 1), 0.2), math.radians(0), math.radians(73)), False)
sketch8.addGeometry(Part.ArcOfCircle(Part.Circle(V(0, -3.1, 0), V(0, 0, 1), 7.9), math.radians(73), math.radians(107)), False)
sketch8.addGeometry(Part.ArcOfCircle(Part.Circle(V(-2.3, 4.25, 0), V(0, 0, 1), 0.2), math.radians(107), math.radians(180)), False)
sketch8.addConstraint(Sketcher.Constraint("Coincident", 0, 2, 1, 1))
sketch8.addConstraint(Sketcher.Constraint("Coincident", 1, 2, 2, 1))
sketch8.addConstraint(Sketcher.Constraint("Tangent", 2, 2, 3, 1))
sketch8.addConstraint(Sketcher.Constraint("Tangent", 3, 2, 4, 1))
sketch8.addConstraint(Sketcher.Constraint("Tangent", 4, 2, 5, 1))
sketch8.addConstraint(Sketcher.Constraint("Tangent", 5, 2, 0, 1))
sketch8.addConstraint(Sketcher.Constraint("Vertical", 0))
sketch8.addConstraint(Sketcher.Constraint("Horizontal", 1))
sketch8.addConstraint(Sketcher.Constraint("Vertical", 2))
sketch8.addConstraint(Sketcher.Constraint("Equal", 3, 5))
sketch8.addConstraint(Sketcher.Constraint("Symmetric", 3, 3, 5, 3, -2))
sketch8.addConstraint(Sketcher.Constraint("Radius", 3, 0.2))
sketch8.addConstraint(Sketcher.Constraint("Radius", 4, 7.9))
sketch8.addConstraint(Sketcher.Constraint("DistanceX", 1, 1, 1, 2, 5.0))
sketch8.addConstraint(Sketcher.Constraint("DistanceY", 4, 3, -1, 1, 3.1))
sketch8.addConstraint(Sketcher.Constraint("DistanceY", -1, 1, 0, 2, 2.8))
pad3 = body.newObject("PartDesign::Pad", "Pad002")
pad3.Profile = sketch8
pad3.Length = 0.4
pad3.Midplane = True

# Sketch on XY plane
sketch9 = body.newObject("Sketcher::SketchObject", "Sketch008")
sketch9.AttachmentSupport = (doc.getObject("XY_Plane"), [""])
sketch9.MapMode = "FlatFace"
sketch9.AttachmentOffset = App.Placement(V(0, 0, 23.21), App.Rotation())
add_polygon(sketch9, [(-0.2, 4.78), (-0.2, 2.78), (0.2, 2.78), (0.2, 4.78)])  # lines 0-3
sketch9.addConstraint(Sketcher.Constraint("Vertical", 0))
sketch9.addConstraint(Sketcher.Constraint("Horizontal", 1))
sketch9.addConstraint(Sketcher.Constraint("Vertical", 2))
sketch9.addConstraint(Sketcher.Constraint("Horizontal", 3))
sketch9.addConstraint(Sketcher.Constraint("DistanceY", 0, 2, 0, 1, 2.0))
sketch9.addConstraint(Sketcher.Constraint("DistanceX", 1, 1, 1, 2, 0.4))
sketch9.addConstraint(Sketcher.Constraint("DistanceX", 0, 2, -1, 1, 0.2))
sketch9.addConstraint(Sketcher.Constraint("DistanceY", -1, 1, 0, 2, 2.78))
pad4 = body.newObject("PartDesign::Pad", "Pad003")
pad4.Profile = sketch9
pad4.Length = 2
pad4.Midplane = True

# Sketch on YZ plane
sketch10 = body.newObject("Sketcher::SketchObject", "Sketch009")
sketch10.AttachmentSupport = (doc.getObject("YZ_Plane"), [""])
sketch10.MapMode = "FlatFace"
add_polygon(sketch10, [(2, 0), (2, -90), (3.5, -90), (3.5, -3), (4, -3), (4, 0)])  # lines 0-5
sketch10.addGeometry(Part.LineSegment(V(2, 0, 0), V(2, -90, 0)), True)  # axis
sketch10.addConstraint(Sketcher.Constraint("Vertical", 0))
sketch10.addConstraint(Sketcher.Constraint("Horizontal", 1))
sketch10.addConstraint(Sketcher.Constraint("Vertical", 2))
sketch10.addConstraint(Sketcher.Constraint("Horizontal", 3))
sketch10.addConstraint(Sketcher.Constraint("Vertical", 4))
sketch10.addConstraint(Sketcher.Constraint("Horizontal", 5))
sketch10.addConstraint(Sketcher.Constraint("Vertical", 6))
sketch10.addConstraint(Sketcher.Constraint("Coincident", 6, 1, 5, 2))
sketch10.addConstraint(Sketcher.Constraint("PointOnObject", 4, 2, -1))
sketch10.addConstraint(Sketcher.Constraint("Horizontal", 1, 2, 6, 2))
sketch10.addConstraint(Sketcher.Constraint("DistanceX", 5, 2, 5, 1, 2.0))
sketch10.addConstraint(Sketcher.Constraint("DistanceY", 0, 2, 0, 1, 90.0))
sketch10.addConstraint(Sketcher.Constraint("DistanceY", 2, 1, 2, 2, 87.0))
sketch10.addConstraint(Sketcher.Constraint("DistanceX", 1, 1, 1, 2, 1.45))
sketch10.addConstraint(Sketcher.Constraint("DistanceX", -1, 1, 1, 2, 3.5))
revolution2 = body.newObject("PartDesign::Revolution", "Revolution001")
revolution2.Profile = sketch10
revolution2.ReferenceAxis = (sketch10, ["Axis0"])
revolution2.Angle = 360

# Sketch on XY plane
sketch11 = body.newObject("Sketcher::SketchObject", "Sketch010")
sketch11.AttachmentSupport = (doc.getObject("XY_Plane"), [""])
sketch11.MapMode = "FlatFace"
sketch11.AttachmentOffset = App.Placement(V(0, 0, -90), App.Rotation())
add_polygon(sketch11, [(2, 0.05), (-2, 0.05), (-2, 4.05), (2, 4.05)])  # lines 0-3
sketch11.addGeometry(Part.Circle(V(-0.35, 1.85, 0), V(0, 0, 1), 0.3), False)  # 4
sketch11.addGeometry(Part.Circle(V(0.35, 1.85, 0), V(0, 0, 1), 0.3), False)  # 5
sketch11.addGeometry(Part.Circle(V(0, 2.45, 0), V(0, 0, 1), 0.3), False)  # 6
sketch11.addConstraint(Sketcher.Constraint("Horizontal", 0))
sketch11.addConstraint(Sketcher.Constraint("Vertical", 1))
sketch11.addConstraint(Sketcher.Constraint("Horizontal", 2))
sketch11.addConstraint(Sketcher.Constraint("Vertical", 3))
sketch11.addConstraint(Sketcher.Constraint("Equal", 4, 5))
sketch11.addConstraint(Sketcher.Constraint("Equal", 5, 6))
sketch11.addConstraint(Sketcher.Constraint("Symmetric", 4, 3, 5, 3, -2))
sketch11.addConstraint(Sketcher.Constraint("PointOnObject", 6, 3, -2))
sketch11.addConstraint(Sketcher.Constraint("Equal", 2, 1))
sketch11.addConstraint(Sketcher.Constraint("Diameter", 4, 0.6))
sketch11.addConstraint(Sketcher.Constraint("DistanceX", 0, 2, 0, 1, 4.0))
sketch11.addConstraint(Sketcher.Constraint("DistanceX", 0, 2, -1, 1, 2.0))
sketch11.addConstraint(Sketcher.Constraint("DistanceY", 4, 3, 6, 3, 0.6))
sketch11.addConstraint(Sketcher.Constraint("DistanceY", 0, 2, 4, 3, 1.8))
sketch11.addConstraint(Sketcher.Constraint("DistanceY", -1, 1, 4, 3, 1.85))
sketch11.addConstraint(Sketcher.Constraint("DistanceX", 4, 3, -1, 1, 0.3464))
pocket5 = body.newObject("PartDesign::Pocket", "Pocket004")
pocket5.Profile = sketch11
pocket5.Length = 10
pocket5.Reversed = True

# Sketch on XY plane
sketch12 = body.newObject("Sketcher::SketchObject", "Sketch011")
sketch12.AttachmentSupport = (doc.getObject("XY_Plane"), [""])
sketch12.MapMode = "FlatFace"
sketch12.AttachmentOffset = App.Placement(V(0, 0, -1.5), App.Rotation())
sketch12.addGeometry(Part.LineSegment(V(-3.05, 2.53, 0), V(-3.07, 2.44, 0)), False)
sketch12.addGeometry(Part.ArcOfCircle(Part.Circle(V(-2.87, 2.41, 0), V(0, 0, 1), 0.2), math.radians(170), math.radians(260)), False)
sketch12.addGeometry(Part.LineSegment(V(-2.91, 2.21, 0), V(0, 1.7, 0)), False)
sketch12.addGeometry(Part.LineSegment(V(0, 1.7, 0), V(2.91, 2.21, 0)), False)
sketch12.addGeometry(Part.ArcOfCircle(Part.Circle(V(2.87, 2.41, 0), V(0, 0, 1), 0.2), math.radians(-80), math.radians(10)), False)
sketch12.addGeometry(Part.LineSegment(V(3.07, 2.44, 0), V(3.05, 2.53, 0)), False)
sketch12.addGeometry(Part.ArcOfCircle(Part.Circle(V(2.86, 2.5, 0), V(0, 0, 1), 0.2), math.radians(10), math.radians(100)), False)
sketch12.addGeometry(Part.LineSegment(V(2.82, 2.69, 0), V(0, 2.2, 0)), False)
sketch12.addGeometry(Part.LineSegment(V(0, 2.2, 0), V(-2.82, 2.69, 0)), False)
sketch12.addGeometry(Part.ArcOfCircle(Part.Circle(V(-2.86, 2.5, 0), V(0, 0, 1), 0.2), math.radians(80), math.radians(170)), False)
sketch12.addConstraint(Sketcher.Constraint("Tangent", 0, 2, 1, 1))
sketch12.addConstraint(Sketcher.Constraint("Tangent", 1, 2, 2, 1))
sketch12.addConstraint(Sketcher.Constraint("Coincident", 2, 2, 3, 1))
sketch12.addConstraint(Sketcher.Constraint("Tangent", 3, 2, 4, 1))
sketch12.addConstraint(Sketcher.Constraint("Tangent", 4, 2, 5, 1))
sketch12.addConstraint(Sketcher.Constraint("Tangent", 5, 2, 6, 1))
sketch12.addConstraint(Sketcher.Constraint("Tangent", 6, 2, 7, 1))
sketch12.addConstraint(Sketcher.Constraint("Coincident", 7, 2, 8, 1))
sketch12.addConstraint(Sketcher.Constraint("Tangent", 8, 2, 9, 1))
sketch12.addConstraint(Sketcher.Constraint("Tangent", 9, 2, 0, 1))
sketch12.addConstraint(Sketcher.Constraint("Equal", 1, 4))
sketch12.addConstraint(Sketcher.Constraint("Equal", 4, 6))
sketch12.addConstraint(Sketcher.Constraint("Equal", 6, 9))
sketch12.addConstraint(Sketcher.Constraint("Symmetric", 1, 3, 4, 3, -2))
sketch12.addConstraint(Sketcher.Constraint("Symmetric", 6, 3, 9, 3, -2))
sketch12.addConstraint(Sketcher.Constraint("PointOnObject", 2, 2, -2))
sketch12.addConstraint(Sketcher.Constraint("PointOnObject", 7, 2, -2))
sketch12.addConstraint(Sketcher.Constraint("Perpendicular", 0, 2))
sketch12.addConstraint(Sketcher.Constraint("Perpendicular", 5, 7))
sketch12.addConstraint(Sketcher.Constraint("Radius", 1, 0.2))
sketch12.addConstraint(Sketcher.Constraint("Angle", 2, Q("-10.0007 deg")))
sketch12.addConstraint(Sketcher.Constraint("DistanceY", 2, 2, 7, 2, 0.5))
sketch12.addConstraint(Sketcher.Constraint("DistanceY", -1, 1, 1, 2, 2.21))
sketch12.addConstraint(Sketcher.Constraint("Distance", 7, 2.865))
pad5 = body.newObject("PartDesign::Pad", "Pad004")
pad5.Profile = sketch12
pad5.Length = 1.8
pad5.Midplane = True

doc.recompute()
